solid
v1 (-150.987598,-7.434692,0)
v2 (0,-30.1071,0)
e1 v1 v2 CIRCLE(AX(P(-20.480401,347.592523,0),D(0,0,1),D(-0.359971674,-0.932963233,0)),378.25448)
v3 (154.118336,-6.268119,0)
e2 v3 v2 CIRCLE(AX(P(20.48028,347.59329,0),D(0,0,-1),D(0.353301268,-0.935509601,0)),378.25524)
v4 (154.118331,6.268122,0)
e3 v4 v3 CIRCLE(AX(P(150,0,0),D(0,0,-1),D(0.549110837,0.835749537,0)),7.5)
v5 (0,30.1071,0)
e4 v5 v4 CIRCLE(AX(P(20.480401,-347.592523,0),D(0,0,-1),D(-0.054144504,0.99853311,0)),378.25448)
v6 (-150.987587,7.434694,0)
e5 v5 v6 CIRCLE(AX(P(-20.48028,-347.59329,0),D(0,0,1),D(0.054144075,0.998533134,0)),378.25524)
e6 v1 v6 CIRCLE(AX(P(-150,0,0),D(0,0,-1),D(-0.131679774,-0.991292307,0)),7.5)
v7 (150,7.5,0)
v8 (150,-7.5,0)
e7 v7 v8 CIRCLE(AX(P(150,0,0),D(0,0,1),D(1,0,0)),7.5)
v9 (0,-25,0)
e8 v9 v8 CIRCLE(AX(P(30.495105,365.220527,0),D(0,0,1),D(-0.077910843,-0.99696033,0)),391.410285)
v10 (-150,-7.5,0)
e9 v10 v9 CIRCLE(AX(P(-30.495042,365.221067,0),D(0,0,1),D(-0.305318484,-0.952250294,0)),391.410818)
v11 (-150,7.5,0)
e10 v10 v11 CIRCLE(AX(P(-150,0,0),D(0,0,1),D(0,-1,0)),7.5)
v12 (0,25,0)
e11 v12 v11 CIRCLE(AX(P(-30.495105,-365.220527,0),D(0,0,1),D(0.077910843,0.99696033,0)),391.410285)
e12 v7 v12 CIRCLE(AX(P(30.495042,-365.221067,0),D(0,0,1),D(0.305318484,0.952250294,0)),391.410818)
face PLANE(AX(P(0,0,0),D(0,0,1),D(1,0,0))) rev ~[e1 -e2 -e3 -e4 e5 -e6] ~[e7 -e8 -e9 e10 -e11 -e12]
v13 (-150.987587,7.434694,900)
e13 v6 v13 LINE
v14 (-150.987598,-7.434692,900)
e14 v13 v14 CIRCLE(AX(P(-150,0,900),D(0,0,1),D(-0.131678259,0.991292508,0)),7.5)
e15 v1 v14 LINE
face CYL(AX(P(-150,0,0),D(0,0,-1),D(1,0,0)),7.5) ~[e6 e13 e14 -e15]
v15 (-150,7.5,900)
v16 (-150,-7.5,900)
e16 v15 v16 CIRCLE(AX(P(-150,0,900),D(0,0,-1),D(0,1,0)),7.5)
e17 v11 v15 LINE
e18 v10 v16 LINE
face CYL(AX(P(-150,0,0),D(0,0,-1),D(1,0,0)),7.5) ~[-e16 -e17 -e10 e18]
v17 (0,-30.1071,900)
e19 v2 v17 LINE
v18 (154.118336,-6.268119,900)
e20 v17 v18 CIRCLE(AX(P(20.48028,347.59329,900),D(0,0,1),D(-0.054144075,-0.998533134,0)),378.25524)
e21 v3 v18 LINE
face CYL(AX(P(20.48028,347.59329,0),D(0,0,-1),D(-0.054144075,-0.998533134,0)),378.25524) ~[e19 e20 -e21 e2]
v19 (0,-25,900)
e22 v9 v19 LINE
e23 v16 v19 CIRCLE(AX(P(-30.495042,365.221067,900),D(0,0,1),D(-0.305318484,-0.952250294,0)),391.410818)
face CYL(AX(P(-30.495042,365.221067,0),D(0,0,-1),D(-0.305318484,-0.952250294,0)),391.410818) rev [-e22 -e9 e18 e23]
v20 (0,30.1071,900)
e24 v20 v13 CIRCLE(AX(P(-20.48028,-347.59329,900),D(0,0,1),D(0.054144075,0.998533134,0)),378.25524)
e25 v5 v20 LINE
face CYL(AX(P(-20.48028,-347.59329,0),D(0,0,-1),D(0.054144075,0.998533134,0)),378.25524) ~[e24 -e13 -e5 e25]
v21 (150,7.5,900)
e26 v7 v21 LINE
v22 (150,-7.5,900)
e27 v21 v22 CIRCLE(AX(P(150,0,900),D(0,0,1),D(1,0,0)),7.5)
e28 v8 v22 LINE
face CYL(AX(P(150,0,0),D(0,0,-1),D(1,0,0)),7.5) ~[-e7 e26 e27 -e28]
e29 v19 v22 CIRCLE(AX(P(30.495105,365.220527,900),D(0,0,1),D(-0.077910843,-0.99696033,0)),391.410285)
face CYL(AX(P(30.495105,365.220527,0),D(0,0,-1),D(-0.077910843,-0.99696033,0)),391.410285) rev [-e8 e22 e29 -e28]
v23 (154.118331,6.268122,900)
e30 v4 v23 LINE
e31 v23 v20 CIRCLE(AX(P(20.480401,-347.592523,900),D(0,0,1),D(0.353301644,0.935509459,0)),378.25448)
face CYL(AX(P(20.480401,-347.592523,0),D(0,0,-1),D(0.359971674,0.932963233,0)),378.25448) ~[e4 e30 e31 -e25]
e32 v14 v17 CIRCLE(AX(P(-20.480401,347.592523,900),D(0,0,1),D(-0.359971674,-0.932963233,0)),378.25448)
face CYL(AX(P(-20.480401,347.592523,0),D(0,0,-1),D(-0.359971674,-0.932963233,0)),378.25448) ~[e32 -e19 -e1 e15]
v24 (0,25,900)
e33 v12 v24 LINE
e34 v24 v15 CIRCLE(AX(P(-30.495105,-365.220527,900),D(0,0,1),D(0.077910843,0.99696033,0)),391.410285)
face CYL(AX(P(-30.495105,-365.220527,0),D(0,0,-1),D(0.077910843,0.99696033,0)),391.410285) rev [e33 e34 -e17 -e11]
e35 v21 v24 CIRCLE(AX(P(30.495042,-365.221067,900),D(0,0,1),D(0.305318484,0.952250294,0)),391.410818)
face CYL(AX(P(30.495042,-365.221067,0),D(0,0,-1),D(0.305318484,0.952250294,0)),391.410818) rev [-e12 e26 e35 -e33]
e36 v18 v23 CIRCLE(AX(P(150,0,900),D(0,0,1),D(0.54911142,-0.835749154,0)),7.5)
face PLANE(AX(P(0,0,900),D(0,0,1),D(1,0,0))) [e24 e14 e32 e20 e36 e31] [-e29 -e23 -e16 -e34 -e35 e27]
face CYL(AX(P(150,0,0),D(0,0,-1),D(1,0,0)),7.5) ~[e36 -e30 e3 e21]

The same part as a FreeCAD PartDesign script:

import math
import FreeCAD as App
import Part
import Sketcher

doc = App.newDocument("Part")
body = doc.addObject("PartDesign::Body", "Body")

sketch1 = body.newObject("Sketcher::SketchObject", "Sketch")
sketch1.AttachmentSupport = (doc.getObject("XY_Plane"), [""])
sketch1.MapMode = "FlatFace"
sketch1.addGeometry([
    Part.ArcOfCircle(Part.Circle(App.Vector(-20, 348, 0), App.Vector(0, 0, 1), 378), math.radians(-110), math.radians(-87)),
    Part.ArcOfCircle(Part.Circle(App.Vector(20, 348, 0), App.Vector(0, 0, 1), 378), math.radians(-93), math.radians(-69)),
    Part.ArcOfCircle(Part.Circle(App.Vector(150, 0, 0), App.Vector(0, 0, 1), 8), math.radians(-57), math.radians(57)),
    Part.ArcOfCircle(Part.Circle(App.Vector(20, -348, 0), App.Vector(0, 0, 1), 378), math.radians(69), math.radians(93)),
    Part.ArcOfCircle(Part.Circle(App.Vector(-20, -348, 0), App.Vector(0, 0, 1), 378), math.radians(87), math.radians(110)),
    Part.ArcOfCircle(Part.Circle(App.Vector(-150, 0, 0), App.Vector(0, 0, 1), 8), math.radians(98), math.radians(262)),
    Part.ArcOfCircle(Part.Circle(App.Vector(-150, 0, 0), App.Vector(0, 0, 1), 8), math.radians(-90), math.radians(90)),
    Part.ArcOfCircle(Part.Circle(App.Vector(-30, -365, 0), App.Vector(0, 0, 1), 391), math.radians(86), math.radians(108)),
    Part.ArcOfCircle(Part.Circle(App.Vector(30, -365, 0), App.Vector(0, 0, 1), 391), math.radians(72), math.radians(94)),
    Part.ArcOfCircle(Part.Circle(App.Vector(150, 0, 0), App.Vector(0, 0, 1), 8), math.radians(90), math.radians(270)),
    Part.ArcOfCircle(Part.Circle(App.Vector(30, 365, 0), App.Vector(0, 0, 1), 391), math.radians(-94), math.radians(-72)),
    Part.ArcOfCircle(Part.Circle(App.Vector(-30, 365, 0), App.Vector(0, 0, 1), 391), math.radians(-108), math.radians(-86)),
], False)
sketch1.addConstraint([
    Sketcher.Constraint("Coincident", 0, 2, 1, 1),
    Sketcher.Constraint("Coincident", 1, 2, 2, 1),
    Sketcher.Constraint("Coincident", 2, 2, 3, 1),
    Sketcher.Constraint("Coincident", 3, 2, 4, 1),
    Sketcher.Constraint("Coincident", 4, 2, 5, 1),
    Sketcher.Constraint("Coincident", 5, 2, 0, 1),
    Sketcher.Constraint("Coincident", 6, 2, 7, 2),
    Sketcher.Constraint("Coincident", 7, 1, 8, 2),
    Sketcher.Constraint("Coincident", 8, 1, 9, 1),
    Sketcher.Constraint("Coincident", 9, 2, 10, 2),
    Sketcher.Constraint("Coincident", 10, 1, 11, 2),
    Sketcher.Constraint("Coincident", 11, 1, 6, 1),
    Sketcher.Constraint("Coincident", 6, 3, 5, 3),
    Sketcher.Constraint("Coincident", 9, 3, 2, 3),
    Sketcher.Constraint("Equal", 0, 1),
    Sketcher.Constraint("Equal", 1, 3),
    Sketcher.Constraint("Equal", 3, 4),
    Sketcher.Constraint("Equal", 2, 5),
    Sketcher.Constraint("Equal", 5, 6),
    Sketcher.Constraint("Equal", 7, 8),
    Sketcher.Constraint("Equal", 6, 9),
    Sketcher.Constraint("Equal", 8, 10),
    Sketcher.Constraint("Equal", 10, 11),
    Sketcher.Constraint("Symmetric", 0, 3, 3, 3, -1, 1),
    Sketcher.Constraint("Symmetric", 1, 3, 4, 3, -1, 1),
    Sketcher.Constraint("Symmetric", 2, 3, 5, 3, -1, 1),
    Sketcher.Constraint("Symmetric", 7, 3, 10, 3, -1, 1),
    Sketcher.Constraint("Symmetric", 8, 3, 11, 3, -1, 1),
    Sketcher.Constraint("Symmetric", 0, 3, 1, 3, -2),
    Sketcher.Constraint("Symmetric", 7, 3, 8, 3, -2),
    Sketcher.Constraint("PointOnObject", 2, 3, -1),
    Sketcher.Constraint("Vertical", 5, 3, 6, 2),
    Sketcher.Constraint("Radius", 2, 7.5),
    Sketcher.Constraint("DistanceX", -1, 1, 2, 3, 150.0),
    Sketcher.Constraint("DistanceY", -1, 1, 7, 1, 25.0),
    Sketcher.Constraint("Radius", 0, 378.2549),
    Sketcher.Constraint("Radius", 7, 391.4106),
    Sketcher.Constraint("DistanceY", -1, 1, 0, 3, 347.593),
    Sketcher.Constraint("DistanceY", 1, 2, -1, 1, 6.268),
])
pad1 = body.newObject("PartDesign::Pad", "Pad")
pad1.Profile = sketch1
pad1.Length = 900

doc.recompute()
